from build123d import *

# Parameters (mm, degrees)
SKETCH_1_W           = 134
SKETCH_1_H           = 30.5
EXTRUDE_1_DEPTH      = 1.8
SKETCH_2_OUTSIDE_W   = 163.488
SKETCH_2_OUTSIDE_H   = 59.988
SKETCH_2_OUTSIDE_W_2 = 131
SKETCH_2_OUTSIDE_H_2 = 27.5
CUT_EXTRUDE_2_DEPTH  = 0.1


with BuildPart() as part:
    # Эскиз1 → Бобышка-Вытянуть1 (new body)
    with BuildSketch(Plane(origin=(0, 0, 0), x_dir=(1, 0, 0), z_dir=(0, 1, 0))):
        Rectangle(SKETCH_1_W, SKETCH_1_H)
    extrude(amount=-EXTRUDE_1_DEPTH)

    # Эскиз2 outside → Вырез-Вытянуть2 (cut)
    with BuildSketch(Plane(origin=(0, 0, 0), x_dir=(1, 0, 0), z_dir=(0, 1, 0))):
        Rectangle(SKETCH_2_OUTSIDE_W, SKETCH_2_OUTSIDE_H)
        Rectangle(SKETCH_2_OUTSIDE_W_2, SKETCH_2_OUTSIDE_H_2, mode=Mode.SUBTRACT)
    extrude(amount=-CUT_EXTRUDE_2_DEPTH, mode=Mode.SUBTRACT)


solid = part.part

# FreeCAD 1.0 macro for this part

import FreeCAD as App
import Part
import Sketcher
from FreeCAD import Vector

doc = App.newDocument("Part")
params = doc.addObject("Spreadsheet::Sheet", "Params")
for row, (alias, value) in enumerate([
    ("sketch1_width", "134 mm"),
    ("sketch1_height", "30.5 mm"),
    ("pad1_length", "1.8 mm"),
    ("sketch2_width", "131 mm"),
    ("sketch2_height", "27.5 mm"),
    ("pocket1_length", "0.1 mm"),
], start=1):
    params.set(f"A{row}", alias)
    params.set(f"B{row}", "=" + value)
    params.setAlias(f"B{row}", alias)

body = doc.addObject("PartDesign::Body", "Body")

# Sketch on XZ plane
sketch1 = body.newObject("Sketcher::SketchObject", "Sketch")
sketch1.AttachmentSupport = (doc.getObject("XZ_Plane"), [""])
sketch1.MapMode = "FlatFace"
sketch1.addGeometry(Part.LineSegment(Vector(-67, -15, 0), Vector(-67, 15, 0)), False)
sketch1.addGeometry(Part.LineSegment(Vector(-67, 15, 0), Vector(67, 15, 0)), False)
sketch1.addGeometry(Part.LineSegment(Vector(67, 15, 0), Vector(67, -15, 0)), False)
sketch1.addGeometry(Part.LineSegment(Vector(67, -15, 0), Vector(-67, -15, 0)), False)
sketch1.addConstraint(Sketcher.Constraint("Coincident", 0, 2, 1, 1))
sketch1.addConstraint(Sketcher.Constraint("Coincident", 1, 2, 2, 1))
sketch1.addConstraint(Sketcher.Constraint("Coincident", 2, 2, 3, 1))
sketch1.addConstraint(Sketcher.Constraint("Coincident", 3, 2, 0, 1))
sketch1.addConstraint(Sketcher.Constraint("Vertical", 0))
sketch1.addConstraint(Sketcher.Constraint("Horizontal", 1))
sketch1.addConstraint(Sketcher.Constraint("Vertical", 2))
sketch1.addConstraint(Sketcher.Constraint("Horizontal", 3))
sketch1.addConstraint(Sketcher.Constraint("Symmetric", 0, 2, 2, 2, -1, 1))
sketch1.addConstraint(Sketcher.Constraint("DistanceX", 1, 1, 1, 2, 134.0))
sketch1.addConstraint(Sketcher.Constraint("DistanceY", 0, 1, 0, 2, 30.5))
sketch1.setExpression("Constraints[9]", "Params.sketch1_width")
sketch1.setExpression("Constraints[10]", "Params.sketch1_height")
pad1 = body.newObject("PartDesign::Pad", "Pad")
pad1.Profile = sketch1
pad1.setExpression("Length", "Params.pad1_length")

# Sketch on XZ plane
sketch2 = body.newObject("Sketcher::SketchObject", "Sketch001")
sketch2.AttachmentSupport = (doc.getObject("XZ_Plane"), [""])
sketch2.MapMode = "FlatFace"
sketch2.addGeometry(Part.LineSegment(Vector(-82, -30, 0), Vector(-82, 30, 0)), False)
sketch2.addGeometry(Part.LineSegment(Vector(-82, 30, 0), Vector(82, 30, 0)), False)
sketch2.addGeometry(Part.LineSegment(Vector(82, 30, 0), Vector(82, -30, 0)), False)
sketch2.addGeometry(Part.LineSegment(Vector(82, -30, 0), Vector(-82, -30, 0)), False)
sketch2.addGeometry(Part.LineSegment(Vector(66, 14, 0), Vector(-66, 14, 0)), False)
sketch2.addGeometry(Part.LineSegment(Vector(-66, 14, 0), Vector(-66, -14, 0)), False)
sketch2.addGeometry(Part.LineSegment(Vector(-66, -14, 0), Vector(66, -14, 0)), False)
sketch2.addGeometry(Part.LineSegment(Vector(66, -14, 0), Vector(66, 14, 0)), False)
sketch2.addConstraint(Sketcher.Constraint("Coincident", 0, 2, 1, 1))
sketch2.addConstraint(Sketcher.Constraint("Coincident", 1, 2, 2, 1))
sketch2.addConstraint(Sketcher.Constraint("Coincident", 2, 2, 3, 1))
sketch2.addConstraint(Sketcher.Constraint("Coincident", 3, 2, 0, 1))
sketch2.addConstraint(Sketcher.Constraint("Coincident", 4, 2, 5, 1))
sketch2.addConstraint(Sketcher.Constraint("Coincident", 5, 2, 6, 1))
sketch2.addConstraint(Sketcher.Constraint("Coincident", 6, 2, 7, 1))
sketch2.addConstraint(Sketcher.Constraint("Coincident", 7, 2, 4, 1))
sketch2.addConstraint(Sketcher.Constraint("Vertical", 0))
sketch2.addConstraint(Sketcher.Constraint("Horizontal", 1))
sketch2.addConstraint(Sketcher.Constraint("Vertical", 2))
sketch2.addConstraint(Sketcher.Constraint("Horizontal", 3))
sketch2.addConstraint(Sketcher.Constraint("Horizontal", 4))
sketch2.addConstraint(Sketcher.Constraint("Vertical", 5))
sketch2.addConstraint(Sketcher.Constraint("Horizontal", 6))
sketch2.addConstraint(Sketcher.Constraint("Vertical", 7))
sketch2.addConstraint(Sketcher.Constraint("Symmetric", 0, 2, 2, 2, -1, 1))
sketch2.addConstraint(Sketcher.Constraint("Symmetric", 4, 2, 6, 2, -1, 1))
sketch2.addConstraint(Sketcher.Constraint("DistanceX", 4, 2, 4, 1, 131.0))
sketch2.addConstraint(Sketcher.Constraint("DistanceY", 5, 2, 5, 1, 27.5))
sketch2.addConstraint(Sketcher.Constraint("DistanceX", 1, 1, 1, 2, 163.488))
sketch2.addConstraint(Sketcher.Constraint("DistanceY", 0, 1, 0, 2, 59.988))
sketch2.setExpression("Constraints[18]", "Params.sketch2_width")
sketch2.setExpression("Constraints[19]", "Params.sketch2_height")
pocket1 = body.newObject("PartDesign::Pocket", "Pocket")
pocket1.Profile = sketch2
pocket1.setExpression("Length", "Params.pocket1_length")
pocket1.Reversed = True

doc.recompute()
